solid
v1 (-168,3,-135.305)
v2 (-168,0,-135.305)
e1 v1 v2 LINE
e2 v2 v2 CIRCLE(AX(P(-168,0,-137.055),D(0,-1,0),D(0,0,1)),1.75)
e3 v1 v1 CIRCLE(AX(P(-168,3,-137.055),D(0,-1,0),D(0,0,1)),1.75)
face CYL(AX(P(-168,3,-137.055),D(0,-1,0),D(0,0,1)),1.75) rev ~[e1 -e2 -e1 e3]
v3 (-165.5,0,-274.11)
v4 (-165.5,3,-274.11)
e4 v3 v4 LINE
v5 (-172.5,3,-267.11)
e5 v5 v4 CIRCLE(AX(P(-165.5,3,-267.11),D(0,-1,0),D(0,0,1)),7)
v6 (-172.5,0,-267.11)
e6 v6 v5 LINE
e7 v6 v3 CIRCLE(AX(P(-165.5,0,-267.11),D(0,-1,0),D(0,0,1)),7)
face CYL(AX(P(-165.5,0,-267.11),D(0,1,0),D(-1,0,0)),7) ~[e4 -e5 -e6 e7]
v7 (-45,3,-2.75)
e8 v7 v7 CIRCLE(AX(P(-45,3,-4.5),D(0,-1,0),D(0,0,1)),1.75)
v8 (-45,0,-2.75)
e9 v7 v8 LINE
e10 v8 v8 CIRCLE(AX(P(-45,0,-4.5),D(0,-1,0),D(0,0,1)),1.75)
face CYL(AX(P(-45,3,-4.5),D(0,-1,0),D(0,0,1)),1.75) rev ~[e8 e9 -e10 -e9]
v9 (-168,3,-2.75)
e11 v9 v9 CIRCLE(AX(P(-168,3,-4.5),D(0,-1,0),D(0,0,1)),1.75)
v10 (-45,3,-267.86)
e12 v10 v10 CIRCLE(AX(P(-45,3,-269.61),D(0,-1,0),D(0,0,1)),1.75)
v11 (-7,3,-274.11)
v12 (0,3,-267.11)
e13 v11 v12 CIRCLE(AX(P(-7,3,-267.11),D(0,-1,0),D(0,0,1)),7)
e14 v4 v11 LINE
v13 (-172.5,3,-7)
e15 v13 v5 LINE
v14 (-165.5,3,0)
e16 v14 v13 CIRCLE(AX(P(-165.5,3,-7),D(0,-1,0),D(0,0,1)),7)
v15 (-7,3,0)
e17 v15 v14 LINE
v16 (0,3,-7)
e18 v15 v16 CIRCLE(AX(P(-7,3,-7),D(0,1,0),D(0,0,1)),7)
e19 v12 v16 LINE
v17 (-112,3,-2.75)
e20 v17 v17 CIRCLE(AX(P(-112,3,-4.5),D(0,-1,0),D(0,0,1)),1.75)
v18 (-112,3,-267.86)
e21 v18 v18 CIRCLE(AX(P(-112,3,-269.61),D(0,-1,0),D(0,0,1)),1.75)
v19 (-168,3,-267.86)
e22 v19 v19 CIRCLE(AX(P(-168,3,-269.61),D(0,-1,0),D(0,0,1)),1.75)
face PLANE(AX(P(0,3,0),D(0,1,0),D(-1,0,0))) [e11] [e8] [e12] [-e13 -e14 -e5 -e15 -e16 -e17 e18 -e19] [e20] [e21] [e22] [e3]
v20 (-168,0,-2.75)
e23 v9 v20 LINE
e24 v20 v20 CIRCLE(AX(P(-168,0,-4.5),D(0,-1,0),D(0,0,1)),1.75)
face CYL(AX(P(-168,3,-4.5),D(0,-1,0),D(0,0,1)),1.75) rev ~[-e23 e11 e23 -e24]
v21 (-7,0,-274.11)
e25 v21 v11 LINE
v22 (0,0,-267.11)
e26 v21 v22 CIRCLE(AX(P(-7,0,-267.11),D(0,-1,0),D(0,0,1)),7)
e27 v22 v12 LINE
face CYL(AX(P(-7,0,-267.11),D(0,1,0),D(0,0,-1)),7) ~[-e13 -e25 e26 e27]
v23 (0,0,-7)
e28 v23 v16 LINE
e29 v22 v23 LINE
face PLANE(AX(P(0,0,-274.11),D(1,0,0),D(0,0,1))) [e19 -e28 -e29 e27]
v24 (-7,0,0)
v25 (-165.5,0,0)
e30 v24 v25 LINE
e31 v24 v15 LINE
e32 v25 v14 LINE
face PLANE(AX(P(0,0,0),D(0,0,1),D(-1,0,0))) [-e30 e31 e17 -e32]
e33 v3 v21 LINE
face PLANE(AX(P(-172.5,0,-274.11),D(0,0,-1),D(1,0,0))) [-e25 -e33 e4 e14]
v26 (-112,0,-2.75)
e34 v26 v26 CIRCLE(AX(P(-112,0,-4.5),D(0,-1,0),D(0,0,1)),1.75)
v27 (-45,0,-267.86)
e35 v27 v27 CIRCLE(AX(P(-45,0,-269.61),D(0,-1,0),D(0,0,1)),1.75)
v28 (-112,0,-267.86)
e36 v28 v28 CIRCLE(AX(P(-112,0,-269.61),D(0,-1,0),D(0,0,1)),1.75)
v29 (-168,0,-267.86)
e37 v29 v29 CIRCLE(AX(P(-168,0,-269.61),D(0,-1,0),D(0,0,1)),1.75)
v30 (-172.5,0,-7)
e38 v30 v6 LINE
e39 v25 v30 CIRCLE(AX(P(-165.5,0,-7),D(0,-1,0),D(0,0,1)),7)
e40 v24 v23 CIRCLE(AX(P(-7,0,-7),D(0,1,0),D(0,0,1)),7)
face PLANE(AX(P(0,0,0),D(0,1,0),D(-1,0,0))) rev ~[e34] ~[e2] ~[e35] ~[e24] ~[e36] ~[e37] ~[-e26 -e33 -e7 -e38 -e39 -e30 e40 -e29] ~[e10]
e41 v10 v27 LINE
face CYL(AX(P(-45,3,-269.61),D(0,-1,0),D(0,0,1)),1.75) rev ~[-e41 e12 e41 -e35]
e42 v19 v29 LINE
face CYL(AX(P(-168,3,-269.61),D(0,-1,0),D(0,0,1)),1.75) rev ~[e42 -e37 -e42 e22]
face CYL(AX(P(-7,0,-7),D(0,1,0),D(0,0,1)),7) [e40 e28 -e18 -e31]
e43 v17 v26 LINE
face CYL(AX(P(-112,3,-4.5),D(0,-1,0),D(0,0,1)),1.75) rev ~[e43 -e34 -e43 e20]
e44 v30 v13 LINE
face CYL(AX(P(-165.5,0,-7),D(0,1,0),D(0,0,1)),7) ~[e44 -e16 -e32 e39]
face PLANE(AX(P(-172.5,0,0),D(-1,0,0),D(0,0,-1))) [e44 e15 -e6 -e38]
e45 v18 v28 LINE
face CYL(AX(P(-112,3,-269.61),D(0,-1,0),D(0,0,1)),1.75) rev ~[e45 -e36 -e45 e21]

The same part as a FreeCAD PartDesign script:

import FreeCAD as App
import Part
import Sketcher
from FreeCAD import Vector


def edges_at(feature, points):
    """Names of the edges that pass closest to the given points."""
    edges = feature.Shape.Edges
    near = lambda p: min(range(len(edges)), key=lambda i: edges[i].distToShape(Part.Vertex(*p))[0])
    return sorted({f"Edge{near(p) + 1}" for p in points})


def add_polygon(sketch, points):
    """Adds a closed chain of lines whose ends are joined by coincident constraints."""
    first, n = sketch.GeometryCount, len(points)
    for a, b in zip(points, points[1:] + points[:1]):
        sketch.addGeometry(Part.LineSegment(App.Vector(*a, 0), App.Vector(*b, 0)), False)
    for i in range(n):
        sketch.addConstraint(Sketcher.Constraint("Coincident", first + i, 2, first + (i + 1) % n, 1))

doc = App.newDocument("Part")
body = doc.addObject("PartDesign::Body", "Body")

sketch1 = body.newObject("Sketcher::SketchObject", "Sketch")
sketch1.AttachmentSupport = (doc.getObject("XZ_Plane"), [""])
sketch1.MapMode = "FlatFace"
add_polygon(sketch1, [(-172, 0), (0, 0), (0, -274), (-172, -274)])
sketch1.addConstraint([
    Sketcher.Constraint("Horizontal", 0),
    Sketcher.Constraint("Vertical", 1),
    Sketcher.Constraint("Horizontal", 2),
    Sketcher.Constraint("Vertical", 3),
    Sketcher.Constraint("Coincident", 0, 2, -1, 1),
    Sketcher.Constraint("DistanceX", 0, 1, 0, 2, 172.5),
    Sketcher.Constraint("DistanceY", 1, 2, 1, 1, 274.11),
])
pad1 = body.newObject("PartDesign::Pad", "Pad")
pad1.Profile = sketch1
pad1.Length = 3
pad1.Reversed = True
doc.recompute()

fillet = body.newObject("PartDesign::Fillet", "Fillet")
fillet.Base = (pad1, edges_at(pad1, [
    (-172.5, 1.5, 0),
    (0, 1.5, 0),
    (-172.5, 1.5, -274.11),
    (0, 1.5, -274.11),
]))
fillet.Radius = 7

sketch2 = body.newObject("Sketcher::SketchObject", "Sketch001")
sketch2.AttachmentSupport = (doc.getObject("XZ_Plane"), [""])
sketch2.MapMode = "FlatFace"
sketch2.AttachmentOffset = App.Placement(Vector(0, 0, -3), App.Rotation())
sketch2.addGeometry([
    Part.Circle(Vector(-168, -4.5, 0), Vector(0, 0, 1), 1.8),
    Part.Circle(Vector(-112, -4.5, 0), Vector(0, 0, 1), 1.8),
    Part.Circle(Vector(-45, -4.5, 0), Vector(0, 0, 1), 1.8),
    Part.Circle(Vector(-168, -137.1, 0), Vector(0, 0, 1), 1.8),
    Part.Circle(Vector(-168, -269.6, 0), Vector(0, 0, 1), 1.8),
    Part.Circle(Vector(-112, -269.6, 0), Vector(0, 0, 1), 1.8),
    Part.Circle(Vector(-45, -269.6, 0), Vector(0, 0, 1), 1.8),
], False)
sketch2.addConstraint([
    Sketcher.Constraint("Equal", 0, 1),
    Sketcher.Constraint("Equal", 1, 2),
    Sketcher.Constraint("Equal", 2, 3),
    Sketcher.Constraint("Equal", 3, 4),
    Sketcher.Constraint("Equal", 4, 5),
    Sketcher.Constraint("Equal", 5, 6),
    Sketcher.Constraint("Horizontal", 0, 3, 1, 3),
    Sketcher.Constraint("Horizontal", 1, 3, 2, 3),
    Sketcher.Constraint("Horizontal", 4, 3, 5, 3),
    Sketcher.Constraint("Horizontal", 5, 3, 6, 3),
    Sketcher.Constraint("Vertical", 0, 3, 3, 3),
    Sketcher.Constraint("Vertical", 3, 3, 4, 3),
    Sketcher.Constraint("Vertical", 1, 3, 5, 3),
    Sketcher.Constraint("Vertical", 2, 3, 6, 3),
    Sketcher.Constraint("Diameter", 0, 3.5),
    Sketcher.Constraint("DistanceX", 0, 3, -1, 1, 168.0),
    Sketcher.Constraint("DistanceX", 1, 3, -1, 1, 112.0),
    Sketcher.Constraint("DistanceX", 2, 3, -1, 1, 45.0),
    Sketcher.Constraint("DistanceY", 0, 3, -1, 1, 4.5),
    Sketcher.Constraint("DistanceY", 4, 3, -1, 1, 269.61),
    Sketcher.Constraint("DistanceY", 3, 3, -1, 1, 137.055),
])
doc.recompute()
hole = body.newObject("PartDesign::Hole", "Hole")
hole.Profile = sketch2
hole.ThreadType = "None"
hole.Diameter = 3.5
hole.DepthType = "Dimension"
hole.Depth = 3
hole.DrillPoint = "Flat"
hole.Reversed = True

doc.recompute()
